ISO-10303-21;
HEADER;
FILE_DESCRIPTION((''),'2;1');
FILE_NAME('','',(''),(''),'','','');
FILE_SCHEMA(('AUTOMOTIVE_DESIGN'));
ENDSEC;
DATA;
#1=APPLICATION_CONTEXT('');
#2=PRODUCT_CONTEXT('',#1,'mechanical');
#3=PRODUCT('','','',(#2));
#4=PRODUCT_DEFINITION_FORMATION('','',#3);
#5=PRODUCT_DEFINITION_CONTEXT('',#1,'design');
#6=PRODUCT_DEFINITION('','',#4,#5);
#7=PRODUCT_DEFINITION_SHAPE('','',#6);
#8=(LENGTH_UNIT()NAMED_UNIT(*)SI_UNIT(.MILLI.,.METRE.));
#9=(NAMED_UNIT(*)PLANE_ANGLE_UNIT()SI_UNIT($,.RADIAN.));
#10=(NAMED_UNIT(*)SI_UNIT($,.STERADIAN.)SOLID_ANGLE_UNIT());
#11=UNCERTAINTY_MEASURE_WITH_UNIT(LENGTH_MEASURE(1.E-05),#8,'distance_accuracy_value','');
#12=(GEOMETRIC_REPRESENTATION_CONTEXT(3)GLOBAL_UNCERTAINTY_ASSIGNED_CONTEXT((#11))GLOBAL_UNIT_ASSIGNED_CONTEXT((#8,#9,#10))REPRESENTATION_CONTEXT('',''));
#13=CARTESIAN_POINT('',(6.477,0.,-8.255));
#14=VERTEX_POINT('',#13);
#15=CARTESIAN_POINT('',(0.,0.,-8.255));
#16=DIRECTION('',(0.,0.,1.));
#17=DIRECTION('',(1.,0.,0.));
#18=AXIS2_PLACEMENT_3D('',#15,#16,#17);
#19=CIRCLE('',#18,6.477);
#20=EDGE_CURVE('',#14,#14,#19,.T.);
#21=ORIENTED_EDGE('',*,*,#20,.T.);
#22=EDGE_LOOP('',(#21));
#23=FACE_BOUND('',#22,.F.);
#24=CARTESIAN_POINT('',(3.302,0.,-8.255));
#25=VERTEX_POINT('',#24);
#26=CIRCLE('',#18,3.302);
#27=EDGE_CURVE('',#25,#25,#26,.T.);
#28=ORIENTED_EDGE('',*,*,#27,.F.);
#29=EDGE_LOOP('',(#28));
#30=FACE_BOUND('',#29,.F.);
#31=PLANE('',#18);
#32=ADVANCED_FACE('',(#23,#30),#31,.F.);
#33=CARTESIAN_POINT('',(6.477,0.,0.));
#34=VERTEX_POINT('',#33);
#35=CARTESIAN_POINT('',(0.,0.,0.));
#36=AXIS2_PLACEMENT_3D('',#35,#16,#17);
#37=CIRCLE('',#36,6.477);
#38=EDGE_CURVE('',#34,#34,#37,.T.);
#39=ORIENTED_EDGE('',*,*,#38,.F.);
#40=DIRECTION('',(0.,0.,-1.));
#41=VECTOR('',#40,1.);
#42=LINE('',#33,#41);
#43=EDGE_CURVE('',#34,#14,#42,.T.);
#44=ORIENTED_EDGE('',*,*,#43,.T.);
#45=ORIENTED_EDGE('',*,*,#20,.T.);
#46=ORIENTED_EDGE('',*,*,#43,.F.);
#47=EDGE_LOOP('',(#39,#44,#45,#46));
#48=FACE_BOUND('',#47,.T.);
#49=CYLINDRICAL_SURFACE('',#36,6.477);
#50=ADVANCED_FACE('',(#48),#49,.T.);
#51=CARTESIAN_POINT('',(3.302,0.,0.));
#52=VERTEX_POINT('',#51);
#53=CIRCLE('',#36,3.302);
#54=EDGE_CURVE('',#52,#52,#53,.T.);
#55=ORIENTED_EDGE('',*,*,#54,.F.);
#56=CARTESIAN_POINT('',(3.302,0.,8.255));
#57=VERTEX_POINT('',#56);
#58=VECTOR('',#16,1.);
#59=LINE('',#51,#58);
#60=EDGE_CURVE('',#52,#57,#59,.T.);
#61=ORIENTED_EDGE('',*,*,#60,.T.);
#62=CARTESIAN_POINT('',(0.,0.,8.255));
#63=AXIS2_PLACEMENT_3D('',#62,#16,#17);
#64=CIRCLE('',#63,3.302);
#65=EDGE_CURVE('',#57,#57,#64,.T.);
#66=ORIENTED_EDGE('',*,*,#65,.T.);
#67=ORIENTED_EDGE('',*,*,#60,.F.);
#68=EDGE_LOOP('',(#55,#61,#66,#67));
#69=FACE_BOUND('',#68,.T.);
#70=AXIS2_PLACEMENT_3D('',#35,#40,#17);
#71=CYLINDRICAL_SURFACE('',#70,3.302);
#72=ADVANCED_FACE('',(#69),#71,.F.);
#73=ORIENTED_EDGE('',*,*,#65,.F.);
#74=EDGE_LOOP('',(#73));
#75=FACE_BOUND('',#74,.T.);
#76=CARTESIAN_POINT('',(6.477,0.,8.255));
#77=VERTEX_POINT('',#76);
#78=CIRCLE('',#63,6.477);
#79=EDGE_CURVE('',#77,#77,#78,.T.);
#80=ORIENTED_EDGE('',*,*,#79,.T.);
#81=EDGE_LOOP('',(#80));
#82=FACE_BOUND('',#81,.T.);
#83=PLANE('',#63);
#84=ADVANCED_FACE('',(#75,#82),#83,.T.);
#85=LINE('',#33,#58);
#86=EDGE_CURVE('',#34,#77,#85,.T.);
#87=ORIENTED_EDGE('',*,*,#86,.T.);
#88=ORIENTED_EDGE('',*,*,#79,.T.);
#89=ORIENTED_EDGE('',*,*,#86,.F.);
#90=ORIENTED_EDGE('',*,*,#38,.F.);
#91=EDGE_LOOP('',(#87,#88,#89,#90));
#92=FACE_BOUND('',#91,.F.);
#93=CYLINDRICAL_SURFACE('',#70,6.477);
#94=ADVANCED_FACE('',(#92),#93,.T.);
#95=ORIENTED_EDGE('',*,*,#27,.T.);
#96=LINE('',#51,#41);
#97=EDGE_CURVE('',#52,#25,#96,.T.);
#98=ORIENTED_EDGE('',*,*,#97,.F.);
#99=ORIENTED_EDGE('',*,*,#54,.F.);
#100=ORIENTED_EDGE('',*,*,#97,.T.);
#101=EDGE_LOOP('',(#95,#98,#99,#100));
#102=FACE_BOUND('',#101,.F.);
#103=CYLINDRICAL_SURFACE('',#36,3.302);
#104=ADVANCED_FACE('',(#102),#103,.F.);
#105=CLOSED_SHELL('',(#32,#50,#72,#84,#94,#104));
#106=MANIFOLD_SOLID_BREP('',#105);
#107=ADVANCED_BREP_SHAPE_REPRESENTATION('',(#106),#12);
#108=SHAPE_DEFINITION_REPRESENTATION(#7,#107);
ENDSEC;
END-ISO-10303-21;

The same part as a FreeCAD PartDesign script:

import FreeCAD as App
import Part
import Sketcher
Q = App.Units.Quantity

doc = App.newDocument("Part")
body = doc.addObject("PartDesign::Body", "Body")

sketch1 = body.newObject("Sketcher::SketchObject", "Sketch")
sketch1.AttachmentSupport = (doc.getObject("XY_Plane"), [""])
sketch1.MapMode = "FlatFace"
sketch1.addGeometry([
    Part.Circle(App.Vector(0, 0, 0), App.Vector(0, 0, 1), 6.5),
    Part.Circle(App.Vector(0, 0, 0), App.Vector(0, 0, 1), 3.3),
], False)
sketch1.addConstraint([
    Sketcher.Constraint("Coincident", 0, 3, -1, 1),
    Sketcher.Constraint("Coincident", 1, 3, -1, 1),
    Sketcher.Constraint("Diameter", 1, Q("0.26 in")),
    Sketcher.Constraint("Diameter", 0, Q("0.51 in")),
])
pad1 = body.newObject("PartDesign::Pad", "Pad")
pad1.Profile = sketch1
pad1.Length = Q("0.65 in")
pad1.Midplane = True

doc.recompute()
